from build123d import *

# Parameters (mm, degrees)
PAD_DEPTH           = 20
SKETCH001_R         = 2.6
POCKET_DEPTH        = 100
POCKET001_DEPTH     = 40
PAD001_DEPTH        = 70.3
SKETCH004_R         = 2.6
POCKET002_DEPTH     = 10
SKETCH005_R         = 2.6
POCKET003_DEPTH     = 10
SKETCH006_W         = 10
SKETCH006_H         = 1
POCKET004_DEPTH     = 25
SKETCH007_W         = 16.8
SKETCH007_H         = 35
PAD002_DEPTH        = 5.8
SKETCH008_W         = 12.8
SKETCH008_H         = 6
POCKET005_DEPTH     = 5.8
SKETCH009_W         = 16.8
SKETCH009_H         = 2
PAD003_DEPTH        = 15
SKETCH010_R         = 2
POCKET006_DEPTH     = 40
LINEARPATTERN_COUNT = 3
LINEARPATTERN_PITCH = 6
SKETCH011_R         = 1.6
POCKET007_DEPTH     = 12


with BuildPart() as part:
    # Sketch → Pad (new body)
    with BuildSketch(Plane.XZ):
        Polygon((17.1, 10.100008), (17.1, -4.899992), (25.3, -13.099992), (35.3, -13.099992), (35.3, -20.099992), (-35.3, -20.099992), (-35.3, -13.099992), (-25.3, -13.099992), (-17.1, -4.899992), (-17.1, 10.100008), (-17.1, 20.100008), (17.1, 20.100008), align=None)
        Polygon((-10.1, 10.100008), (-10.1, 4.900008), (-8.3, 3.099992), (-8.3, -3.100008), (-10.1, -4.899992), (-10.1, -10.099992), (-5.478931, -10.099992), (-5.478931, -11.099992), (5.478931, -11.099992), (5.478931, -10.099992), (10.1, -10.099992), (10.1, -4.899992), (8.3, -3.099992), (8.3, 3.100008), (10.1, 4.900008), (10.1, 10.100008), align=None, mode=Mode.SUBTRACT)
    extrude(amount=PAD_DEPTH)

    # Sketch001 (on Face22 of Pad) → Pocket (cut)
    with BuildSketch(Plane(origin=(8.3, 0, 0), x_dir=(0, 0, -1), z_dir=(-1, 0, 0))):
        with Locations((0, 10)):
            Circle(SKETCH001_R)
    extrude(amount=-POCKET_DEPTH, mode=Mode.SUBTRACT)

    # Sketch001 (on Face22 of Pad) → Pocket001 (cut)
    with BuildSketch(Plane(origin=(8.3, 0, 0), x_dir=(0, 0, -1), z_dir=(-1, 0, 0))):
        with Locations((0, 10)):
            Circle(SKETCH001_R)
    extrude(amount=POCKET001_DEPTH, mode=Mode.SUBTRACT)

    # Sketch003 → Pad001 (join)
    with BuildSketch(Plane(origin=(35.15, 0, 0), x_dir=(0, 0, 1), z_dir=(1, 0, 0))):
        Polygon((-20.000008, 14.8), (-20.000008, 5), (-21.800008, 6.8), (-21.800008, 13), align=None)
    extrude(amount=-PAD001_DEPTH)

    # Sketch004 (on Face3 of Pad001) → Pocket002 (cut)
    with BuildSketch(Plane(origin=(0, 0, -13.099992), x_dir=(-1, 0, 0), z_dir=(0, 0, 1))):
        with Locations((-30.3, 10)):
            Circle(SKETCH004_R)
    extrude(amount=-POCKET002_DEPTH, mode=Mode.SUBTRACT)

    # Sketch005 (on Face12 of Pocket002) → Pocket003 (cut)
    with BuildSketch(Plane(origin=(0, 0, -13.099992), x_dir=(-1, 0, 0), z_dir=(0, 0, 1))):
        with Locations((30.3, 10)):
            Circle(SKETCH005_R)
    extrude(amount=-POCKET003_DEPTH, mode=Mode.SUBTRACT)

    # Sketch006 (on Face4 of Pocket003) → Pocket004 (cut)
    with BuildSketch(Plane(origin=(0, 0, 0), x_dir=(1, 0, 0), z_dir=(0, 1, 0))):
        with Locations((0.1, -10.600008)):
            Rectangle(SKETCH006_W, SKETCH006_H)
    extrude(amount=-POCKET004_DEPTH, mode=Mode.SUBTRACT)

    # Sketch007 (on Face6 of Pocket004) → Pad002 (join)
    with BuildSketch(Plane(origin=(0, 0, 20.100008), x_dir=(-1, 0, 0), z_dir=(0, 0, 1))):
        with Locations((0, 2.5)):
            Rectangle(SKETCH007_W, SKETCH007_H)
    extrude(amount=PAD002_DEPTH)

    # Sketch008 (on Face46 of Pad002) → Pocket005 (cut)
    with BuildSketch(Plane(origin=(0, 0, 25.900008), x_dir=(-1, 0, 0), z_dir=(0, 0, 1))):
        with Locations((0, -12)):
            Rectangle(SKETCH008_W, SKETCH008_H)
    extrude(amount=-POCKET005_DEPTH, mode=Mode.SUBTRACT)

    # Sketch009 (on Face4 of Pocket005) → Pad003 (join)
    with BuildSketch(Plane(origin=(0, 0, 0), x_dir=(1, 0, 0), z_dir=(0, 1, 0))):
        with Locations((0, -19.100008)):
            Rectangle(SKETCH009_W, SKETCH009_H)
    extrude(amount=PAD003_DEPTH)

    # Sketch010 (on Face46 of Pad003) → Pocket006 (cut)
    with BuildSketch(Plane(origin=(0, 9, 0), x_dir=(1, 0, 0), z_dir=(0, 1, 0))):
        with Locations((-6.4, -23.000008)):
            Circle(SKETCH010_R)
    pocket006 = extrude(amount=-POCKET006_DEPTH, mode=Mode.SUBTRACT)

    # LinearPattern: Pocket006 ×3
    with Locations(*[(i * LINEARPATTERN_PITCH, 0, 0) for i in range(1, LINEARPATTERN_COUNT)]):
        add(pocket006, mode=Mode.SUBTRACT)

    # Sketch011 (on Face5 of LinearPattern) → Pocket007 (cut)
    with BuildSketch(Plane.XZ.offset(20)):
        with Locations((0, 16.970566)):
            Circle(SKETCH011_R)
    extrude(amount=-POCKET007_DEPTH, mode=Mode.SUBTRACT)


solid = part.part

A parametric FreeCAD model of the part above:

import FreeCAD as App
import Part
import Sketcher

V = App.Vector

doc = App.newDocument("Part")
body = doc.addObject("PartDesign::Body", "Body")

# Sketch on XZ plane
sketch1 = body.newObject("Sketcher::SketchObject", "Sketch")
sketch1.AttachmentSupport = (doc.getObject("XZ_Plane"), [""])
sketch1.MapMode = "FlatFace"
sketch1.addGeometry([
    Part.LineSegment(V(17.1, -4.9, 0), V(17.1, 20.1, 0)),  # 0
    Part.LineSegment(V(17.1, 20.1, 0), V(-17.1, 20.1, 0)),  # 1
    Part.LineSegment(V(-17.1, 20.1, 0), V(-17.1, -4.9, 0)),  # 2
    Part.LineSegment(V(-17.1, -4.9, 0), V(-25.3, -13.1, 0)),  # 3
    Part.LineSegment(V(-25.3, -13.1, 0), V(-35.3, -13.1, 0)),  # 4
    Part.LineSegment(V(-35.3, -13.1, 0), V(-35.3, -20.1, 0)),  # 5
    Part.LineSegment(V(-35.3, -20.1, 0), V(35.3, -20.1, 0)),  # 6
    Part.LineSegment(V(35.3, -20.1, 0), V(35.3, -13.1, 0)),  # 7
    Part.LineSegment(V(35.3, -13.1, 0), V(25.3, -13.1, 0)),  # 8
    Part.LineSegment(V(25.3, -13.1, 0), V(17.1, -4.9, 0)),  # 9
    Part.LineSegment(V(-10.1, 10.1, 0), V(10.1, 10.1, 0)),  # 10
    Part.LineSegment(V(10.1, 10.1, 0), V(10.1, 4.9, 0)),  # 11
    Part.LineSegment(V(10.1, 4.9, 0), V(8.3, 3.1, 0)),  # 12
    Part.LineSegment(V(8.3, 3.1, 0), V(8.3, -3.1, 0)),  # 13
    Part.LineSegment(V(8.3, -3.1, 0), V(10.1, -4.9, 0)),  # 14
    Part.LineSegment(V(10.1, -4.9, 0), V(10.1, -10.1, 0)),  # 15
    Part.LineSegment(V(10.1, -10.1, 0), V(5.5, -10.1, 0)),  # 16
    Part.LineSegment(V(5.5, -10.1, 0), V(5.5, -11.1, 0)),  # 17
    Part.LineSegment(V(5.5, -11.1, 0), V(-5.5, -11.1, 0)),  # 18
    Part.LineSegment(V(-5.5, -11.1, 0), V(-5.5, -10.1, 0)),  # 19
    Part.LineSegment(V(-5.5, -10.1, 0), V(-10.1, -10.1, 0)),  # 20
    Part.LineSegment(V(-10.1, -10.1, 0), V(-10.1, -4.9, 0)),  # 21
    Part.LineSegment(V(-10.1, -4.9, 0), V(-8.3, -3.1, 0)),  # 22
    Part.LineSegment(V(-8.3, -3.1, 0), V(-8.3, 3.1, 0)),  # 23
    Part.LineSegment(V(-8.3, 3.1, 0), V(-10.1, 4.9, 0)),  # 24
    Part.LineSegment(V(-10.1, 4.9, 0), V(-10.1, 10.1, 0)),  # 25
], False)
sketch1.addConstraint([
    Sketcher.Constraint("Coincident", 0, 2, 1, 1),
    Sketcher.Constraint("Coincident", 1, 2, 2, 1),
    Sketcher.Constraint("Coincident", 2, 2, 3, 1),
    Sketcher.Constraint("Coincident", 3, 2, 4, 1),
    Sketcher.Constraint("Coincident", 4, 2, 5, 1),
    Sketcher.Constraint("Coincident", 5, 2, 6, 1),
    Sketcher.Constraint("Coincident", 6, 2, 7, 1),
    Sketcher.Constraint("Coincident", 7, 2, 8, 1),
    Sketcher.Constraint("Coincident", 8, 2, 9, 1),
    Sketcher.Constraint("Coincident", 9, 2, 0, 1),
    Sketcher.Constraint("Coincident", 10, 2, 11, 1),
    Sketcher.Constraint("Coincident", 11, 2, 12, 1),
    Sketcher.Constraint("Coincident", 12, 2, 13, 1),
    Sketcher.Constraint("Coincident", 13, 2, 14, 1),
    Sketcher.Constraint("Coincident", 14, 2, 15, 1),
    Sketcher.Constraint("Coincident", 15, 2, 16, 1),
    Sketcher.Constraint("Coincident", 16, 2, 17, 1),
    Sketcher.Constraint("Coincident", 17, 2, 18, 1),
    Sketcher.Constraint("Coincident", 18, 2, 19, 1),
    Sketcher.Constraint("Coincident", 19, 2, 20, 1),
    Sketcher.Constraint("Coincident", 20, 2, 21, 1),
    Sketcher.Constraint("Coincident", 21, 2, 22, 1),
    Sketcher.Constraint("Coincident", 22, 2, 23, 1),
    Sketcher.Constraint("Coincident", 23, 2, 24, 1),
    Sketcher.Constraint("Coincident", 24, 2, 25, 1),
    Sketcher.Constraint("Coincident", 25, 2, 10, 1),
    Sketcher.Constraint("Vertical", 0),
    Sketcher.Constraint("Horizontal", 1),
    Sketcher.Constraint("Vertical", 2),
    Sketcher.Constraint("Horizontal", 4),
    Sketcher.Constraint("Vertical", 5),
    Sketcher.Constraint("Horizontal", 6),
    Sketcher.Constraint("Vertical", 7),
    Sketcher.Constraint("Horizontal", 8),
    Sketcher.Constraint("Horizontal", 10),
    Sketcher.Constraint("Vertical", 11),
    Sketcher.Constraint("Vertical", 13),
    Sketcher.Constraint("Vertical", 15),
    Sketcher.Constraint("Horizontal", 16),
    Sketcher.Constraint("Vertical", 17),
    Sketcher.Constraint("Horizontal", 18),
    Sketcher.Constraint("Vertical", 19),
    Sketcher.Constraint("Horizontal", 20),
    Sketcher.Constraint("Vertical", 21),
    Sketcher.Constraint("Vertical", 23),
    Sketcher.Constraint("Vertical", 25),
    Sketcher.Constraint("Symmetric", 12, 2, 22, 2, -1, 1),
    Sketcher.Constraint("Symmetric", 4, 2, 7, 2, -2),
    Sketcher.Constraint("Symmetric", 2, 2, 9, 2, -2),
    Sketcher.Constraint("Symmetric", 16, 2, 19, 2, -2),
    Sketcher.Constraint("Symmetric", 14, 2, 21, 2, -2),
    Sketcher.Constraint("Symmetric", 11, 2, 24, 2, -2),
    Sketcher.Constraint("Perpendicular", 3, 9),
    Sketcher.Constraint("Perpendicular", 9, 12),
    Sketcher.Constraint("Perpendicular", 12, 14),
    Sketcher.Constraint("Perpendicular", 22, 24),
    Sketcher.Constraint("Horizontal", 9, 2, 14, 2),
    Sketcher.Constraint("Vertical", 11, 2, 14, 2),
    Sketcher.Constraint("Equal", 4, 8),
    Sketcher.Constraint("Equal", 11, 15),
    Sketcher.Constraint("DistanceX", 4, 2, 4, 1, 10.0),
    Sketcher.Constraint("DistanceY", 0, 1, 0, 2, 25.0),
    Sketcher.Constraint("DistanceY", 5, 2, 5, 1, 7.0),
    Sketcher.Constraint("DistanceY", 17, 2, 17, 1, 1.0),
    Sketcher.Constraint("DistanceX", 1, 2, 1, 1, 34.2),
    Sketcher.Constraint("DistanceX", 6, 1, 6, 2, 70.6),
    Sketcher.Constraint("DistanceX", 10, 1, 10, 2, 20.2),
    Sketcher.Constraint("DistanceY", 11, 2, 11, 1, 5.2),
    Sketcher.Constraint("DistanceY", 13, 2, 13, 1, 6.2),
    Sketcher.Constraint("DistanceY", 10, 2, 0, 2, 10.0),
    Sketcher.Constraint("DistanceX", 16, 2, 16, 1, 4.621069),
    Sketcher.Constraint("DistanceY", -1, 1, 10, 2, 10.100008),
])
pad1 = body.newObject("PartDesign::Pad", "Pad")
pad1.Profile = sketch1
pad1.Length = 20

# Sketch on YZ plane
sketch2 = body.newObject("Sketcher::SketchObject", "Sketch001")
sketch2.AttachmentSupport = (doc.getObject("YZ_Plane"), [""])
sketch2.MapMode = "FlatFace"
sketch2.AttachmentOffset = App.Placement(V(0, 0, 8.3), App.Rotation())
sketch2.addGeometry(Part.Circle(V(-10, 0, 0), V(0, 0, 1), 2.6), False)
sketch2.addConstraint([
    Sketcher.Constraint("PointOnObject", 0, 3, -1),
    Sketcher.Constraint("Diameter", 0, 5.2),
    Sketcher.Constraint("DistanceX", 0, 3, -1, 1, 10.0),
])
pocket1 = body.newObject("PartDesign::Pocket", "Pocket")
pocket1.Profile = sketch2
pocket1.Length = 100
pocket1.Reversed = True

# Sketch on YZ plane
sketch3 = body.newObject("Sketcher::SketchObject", "Sketch002")
sketch3.AttachmentSupport = (doc.getObject("YZ_Plane"), [""])
sketch3.MapMode = "FlatFace"
sketch3.AttachmentOffset = App.Placement(V(0, 0, 8.3), App.Rotation())
sketch3.addGeometry(Part.Circle(V(-10, 0, 0), V(0, 0, 1), 2.6), False)
sketch3.addConstraint([
    Sketcher.Constraint("PointOnObject", 0, 3, -1),
    Sketcher.Constraint("Diameter", 0, 5.2),
    Sketcher.Constraint("DistanceX", 0, 3, -1, 1, 10.0),
])
pocket2 = body.newObject("PartDesign::Pocket", "Pocket001")
pocket2.Profile = sketch3
pocket2.Length = 40

# Sketch on YZ plane
sketch4 = body.newObject("Sketcher::SketchObject", "Sketch003")
sketch4.AttachmentSupport = (doc.getObject("YZ_Plane"), [""])
sketch4.MapMode = "FlatFace"
sketch4.AttachmentOffset = App.Placement(V(0, 0, 35.15), App.Rotation())
sketch4.addGeometry([
    Part.LineSegment(V(-5, -20, 0), V(-14.8, -20, 0)),
    Part.LineSegment(V(-14.8, -20, 0), V(-13, -21.8, 0)),
    Part.LineSegment(V(-13, -21.8, 0), V(-6.8, -21.8, 0)),
    Part.LineSegment(V(-6.8, -21.8, 0), V(-5, -20, 0)),
], False)
sketch4.addConstraint([
    Sketcher.Constraint("Coincident", 0, 2, 1, 1),
    Sketcher.Constraint("Coincident", 1, 2, 2, 1),
    Sketcher.Constraint("Coincident", 2, 2, 3, 1),
    Sketcher.Constraint("Coincident", 3, 2, 0, 1),
    Sketcher.Constraint("Horizontal", 0),
    Sketcher.Constraint("Horizontal", 2),
    Sketcher.Constraint("Perpendicular", 1, 3),
    Sketcher.Constraint("Equal", 1, 3),
    Sketcher.Constraint("DistanceX", 0, 2, 0, 1, 9.8),
    Sketcher.Constraint("DistanceX", 2, 1, 2, 2, 6.2),
    Sketcher.Constraint("DistanceX", 1, 2, -1, 1, 13.0),
    Sketcher.Constraint("DistanceY", 0, 2, -1, 1, 20.000008),
])
pad2 = body.newObject("PartDesign::Pad", "Pad001")
pad2.Profile = sketch4
pad2.Length = 70.3
pad2.Reversed = True

# Sketch on XY plane
sketch5 = body.newObject("Sketcher::SketchObject", "Sketch004")
sketch5.AttachmentSupport = (doc.getObject("XY_Plane"), [""])
sketch5.MapMode = "FlatFace"
sketch5.AttachmentOffset = App.Placement(V(0, 0, -13.099992), App.Rotation())
sketch5.addGeometry(Part.Circle(V(30.3, -10, 0), V(0, 0, 1), 2.6), False)
sketch5.addConstraint([
    Sketcher.Constraint("Diameter", 0, 5.2),
    Sketcher.Constraint("DistanceY", 0, 3, -1, 1, 10.0),
    Sketcher.Constraint("DistanceX", -1, 1, 0, 3, 30.3),
])
pocket3 = body.newObject("PartDesign::Pocket", "Pocket002")
pocket3.Profile = sketch5
pocket3.Length = 10

# Sketch on XY plane
sketch6 = body.newObject("Sketcher::SketchObject", "Sketch005")
sketch6.AttachmentSupport = (doc.getObject("XY_Plane"), [""])
sketch6.MapMode = "FlatFace"
sketch6.AttachmentOffset = App.Placement(V(0, 0, -13.099992), App.Rotation())
sketch6.addGeometry(Part.Circle(V(-30.3, -10, 0), V(0, 0, 1), 2.6), False)
sketch6.addConstraint([
    Sketcher.Constraint("Diameter", 0, 5.2),
    Sketcher.Constraint("DistanceY", 0, 3, -1, 1, 10.0),
    Sketcher.Constraint("DistanceX", 0, 3, -1, 1, 30.3),
])
pocket4 = body.newObject("PartDesign::Pocket", "Pocket003")
pocket4.Profile = sketch6
pocket4.Length = 10

# Sketch on XZ plane
sketch7 = body.newObject("Sketcher::SketchObject", "Sketch006")
sketch7.AttachmentSupport = (doc.getObject("XZ_Plane"), [""])
sketch7.MapMode = "FlatFace"
sketch7.addGeometry([
    Part.LineSegment(V(-4.9, 10.1, 0), V(-4.9, 11.1, 0)),
    Part.LineSegment(V(-4.9, 11.1, 0), V(5.1, 11.1, 0)),
    Part.LineSegment(V(5.1, 11.1, 0), V(5.1, 10.1, 0)),
    Part.LineSegment(V(5.1, 10.1, 0), V(-4.9, 10.1, 0)),
], False)
sketch7.addConstraint([
    Sketcher.Constraint("Coincident", 0, 2, 1, 1),
    Sketcher.Constraint("Coincident", 1, 2, 2, 1),
    Sketcher.Constraint("Coincident", 2, 2, 3, 1),
    Sketcher.Constraint("Coincident", 3, 2, 0, 1),
    Sketcher.Constraint("Vertical", 0),
    Sketcher.Constraint("Horizontal", 1),
    Sketcher.Constraint("Vertical", 2),
    Sketcher.Constraint("Horizontal", 3),
    Sketcher.Constraint("DistanceX", 1, 1, 1, 2, 10.0),
    Sketcher.Constraint("DistanceY", 0, 1, 0, 2, 1.0),
    Sketcher.Constraint("DistanceX", 0, 2, -1, 1, 4.9),
    Sketcher.Constraint("DistanceY", -1, 1, 0, 2, 11.100008),
])
pocket5 = body.newObject("PartDesign::Pocket", "Pocket004")
pocket5.Profile = sketch7
pocket5.Length = 25
pocket5.Reversed = True

# Sketch on XY plane
sketch8 = body.newObject("Sketcher::SketchObject", "Sketch007")
sketch8.AttachmentSupport = (doc.getObject("XY_Plane"), [""])
sketch8.MapMode = "FlatFace"
sketch8.AttachmentOffset = App.Placement(V(0, 0, 20.100008), App.Rotation())
sketch8.addGeometry([
    Part.LineSegment(V(8, -20, 0), V(8, 15, 0)),
    Part.LineSegment(V(8, 15, 0), V(-8, 15, 0)),
    Part.LineSegment(V(-8, 15, 0), V(-8, -20, 0)),
    Part.LineSegment(V(-8, -20, 0), V(8, -20, 0)),
], False)
sketch8.addConstraint([
    Sketcher.Constraint("Coincident", 0, 2, 1, 1),
    Sketcher.Constraint("Coincident", 1, 2, 2, 1),
    Sketcher.Constraint("Coincident", 2, 2, 3, 1),
    Sketcher.Constraint("Coincident", 3, 2, 0, 1),
    Sketcher.Constraint("Vertical", 0),
    Sketcher.Constraint("Horizontal", 1),
    Sketcher.Constraint("Vertical", 2),
    Sketcher.Constraint("Horizontal", 3),
    Sketcher.Constraint("DistanceY", 0, 1, 0, 2, 35.0),
    Sketcher.Constraint("DistanceX", 1, 2, 1, 1, 16.8),
    Sketcher.Constraint("DistanceY", -1, 1, 0, 2, 15.0),
    Sketcher.Constraint("DistanceX", -1, 1, 0, 2, 8.4),
])
pad3 = body.newObject("PartDesign::Pad", "Pad002")
pad3.Profile = sketch8
pad3.Length = 5.8

# Sketch on XY plane
sketch9 = body.newObject("Sketcher::SketchObject", "Sketch008")
sketch9.AttachmentSupport = (doc.getObject("XY_Plane"), [""])
sketch9.MapMode = "FlatFace"
sketch9.AttachmentOffset = App.Placement(V(0, 0, 25.900008), App.Rotation())
sketch9.addGeometry([
    Part.LineSegment(V(6, 9, 0), V(6, 15, 0)),
    Part.LineSegment(V(6, 15, 0), V(-6, 15, 0)),
    Part.LineSegment(V(-6, 15, 0), V(-6, 9, 0)),
    Part.LineSegment(V(-6, 9, 0), V(6, 9, 0)),
], False)
sketch9.addConstraint([
    Sketcher.Constraint("Coincident", 0, 2, 1, 1),
    Sketcher.Constraint("Coincident", 1, 2, 2, 1),
    Sketcher.Constraint("Coincident", 2, 2, 3, 1),
    Sketcher.Constraint("Coincident", 3, 2, 0, 1),
    Sketcher.Constraint("Vertical", 0),
    Sketcher.Constraint("Horizontal", 1),
    Sketcher.Constraint("Vertical", 2),
    Sketcher.Constraint("Horizontal", 3),
    Sketcher.Constraint("DistanceY", 0, 1, 0, 2, 6.0),
    Sketcher.Constraint("DistanceX", 1, 2, 1, 1, 12.8),
    Sketcher.Constraint("DistanceY", -1, 1, 0, 2, 15.0),
    Sketcher.Constraint("DistanceX", -1, 1, 0, 2, 6.4),
])
pocket6 = body.newObject("PartDesign::Pocket", "Pocket005")
pocket6.Profile = sketch9
pocket6.Length = 5.8

# Sketch on XZ plane
sketch10 = body.newObject("Sketcher::SketchObject", "Sketch009")
sketch10.AttachmentSupport = (doc.getObject("XZ_Plane"), [""])
sketch10.MapMode = "FlatFace"
sketch10.addGeometry([
    Part.LineSegment(V(-8.4, 18.1, 0), V(-8.4, 20.1, 0)),
    Part.LineSegment(V(-8.4, 20.1, 0), V(8.4, 20.1, 0)),
    Part.LineSegment(V(8.4, 20.1, 0), V(8.4, 18.1, 0)),
    Part.LineSegment(V(8.4, 18.1, 0), V(-8.4, 18.1, 0)),
], False)
sketch10.addConstraint([
    Sketcher.Constraint("Coincident", 0, 2, 1, 1),
    Sketcher.Constraint("Coincident", 1, 2, 2, 1),
    Sketcher.Constraint("Coincident", 2, 2, 3, 1),
    Sketcher.Constraint("Coincident", 3, 2, 0, 1),
    Sketcher.Constraint("Vertical", 0),
    Sketcher.Constraint("Horizontal", 1),
    Sketcher.Constraint("Vertical", 2),
    Sketcher.Constraint("Horizontal", 3),
    Sketcher.Constraint("DistanceY", 0, 1, 0, 2, 2.0),
    Sketcher.Constraint("DistanceX", 1, 1, 1, 2, 16.8),
    Sketcher.Constraint("DistanceX", 0, 2, -1, 1, 8.4),
    Sketcher.Constraint("DistanceY", -1, 1, 0, 2, 20.100008),
])
pad4 = body.newObject("PartDesign::Pad", "Pad003")
pad4.Profile = sketch10
pad4.Length = 15
pad4.Reversed = True

# Sketch on XZ plane
sketch11 = body.newObject("Sketcher::SketchObject", "Sketch010")
sketch11.AttachmentSupport = (doc.getObject("XZ_Plane"), [""])
sketch11.MapMode = "FlatFace"
sketch11.AttachmentOffset = App.Placement(V(0, 0, -9), App.Rotation())
sketch11.addGeometry(Part.Circle(V(-6.4, 23, 0), V(0, 0, 1), 2), False)
sketch11.addConstraint([
    Sketcher.Constraint("Diameter", 0, 4.0),
    Sketcher.Constraint("DistanceX", 0, 3, -1, 1, 6.4),
    Sketcher.Constraint("DistanceY", -1, 1, 0, 3, 23.000008),
])
pocket7 = body.newObject("PartDesign::Pocket", "Pocket006")
pocket7.Profile = sketch11
pocket7.Length = 40
pocket7.Reversed = True
doc.recompute()

linearpattern = body.newObject("PartDesign::LinearPattern", "LinearPattern")
linearpattern.Originals = [pocket7]
linearpattern.Direction = (doc.getObject("X_Axis"), [""])
linearpattern.Mode = "offset"
linearpattern.Offset = 6
linearpattern.Occurrences = 3
body.Tip = linearpattern

# Sketch on XZ plane
sketch12 = body.newObject("Sketcher::SketchObject", "Sketch011")
sketch12.AttachmentSupport = (doc.getObject("XZ_Plane"), [""])
sketch12.MapMode = "FlatFace"
sketch12.AttachmentOffset = App.Placement(V(0, 0, 20), App.Rotation())
sketch12.addGeometry(Part.Circle(V(0, 17, 0), V(0, 0, 1), 1.6), False)
sketch12.addConstraint([
    Sketcher.Constraint("PointOnObject", 0, 3, -2),
    Sketcher.Constraint("Diameter", 0, 3.2),
    Sketcher.Constraint("DistanceY", -1, 1, 0, 3, 16.970566),
])
pocket8 = body.newObject("PartDesign::Pocket", "Pocket007")
pocket8.Profile = sketch12
pocket8.Length = 12

doc.recompute()
